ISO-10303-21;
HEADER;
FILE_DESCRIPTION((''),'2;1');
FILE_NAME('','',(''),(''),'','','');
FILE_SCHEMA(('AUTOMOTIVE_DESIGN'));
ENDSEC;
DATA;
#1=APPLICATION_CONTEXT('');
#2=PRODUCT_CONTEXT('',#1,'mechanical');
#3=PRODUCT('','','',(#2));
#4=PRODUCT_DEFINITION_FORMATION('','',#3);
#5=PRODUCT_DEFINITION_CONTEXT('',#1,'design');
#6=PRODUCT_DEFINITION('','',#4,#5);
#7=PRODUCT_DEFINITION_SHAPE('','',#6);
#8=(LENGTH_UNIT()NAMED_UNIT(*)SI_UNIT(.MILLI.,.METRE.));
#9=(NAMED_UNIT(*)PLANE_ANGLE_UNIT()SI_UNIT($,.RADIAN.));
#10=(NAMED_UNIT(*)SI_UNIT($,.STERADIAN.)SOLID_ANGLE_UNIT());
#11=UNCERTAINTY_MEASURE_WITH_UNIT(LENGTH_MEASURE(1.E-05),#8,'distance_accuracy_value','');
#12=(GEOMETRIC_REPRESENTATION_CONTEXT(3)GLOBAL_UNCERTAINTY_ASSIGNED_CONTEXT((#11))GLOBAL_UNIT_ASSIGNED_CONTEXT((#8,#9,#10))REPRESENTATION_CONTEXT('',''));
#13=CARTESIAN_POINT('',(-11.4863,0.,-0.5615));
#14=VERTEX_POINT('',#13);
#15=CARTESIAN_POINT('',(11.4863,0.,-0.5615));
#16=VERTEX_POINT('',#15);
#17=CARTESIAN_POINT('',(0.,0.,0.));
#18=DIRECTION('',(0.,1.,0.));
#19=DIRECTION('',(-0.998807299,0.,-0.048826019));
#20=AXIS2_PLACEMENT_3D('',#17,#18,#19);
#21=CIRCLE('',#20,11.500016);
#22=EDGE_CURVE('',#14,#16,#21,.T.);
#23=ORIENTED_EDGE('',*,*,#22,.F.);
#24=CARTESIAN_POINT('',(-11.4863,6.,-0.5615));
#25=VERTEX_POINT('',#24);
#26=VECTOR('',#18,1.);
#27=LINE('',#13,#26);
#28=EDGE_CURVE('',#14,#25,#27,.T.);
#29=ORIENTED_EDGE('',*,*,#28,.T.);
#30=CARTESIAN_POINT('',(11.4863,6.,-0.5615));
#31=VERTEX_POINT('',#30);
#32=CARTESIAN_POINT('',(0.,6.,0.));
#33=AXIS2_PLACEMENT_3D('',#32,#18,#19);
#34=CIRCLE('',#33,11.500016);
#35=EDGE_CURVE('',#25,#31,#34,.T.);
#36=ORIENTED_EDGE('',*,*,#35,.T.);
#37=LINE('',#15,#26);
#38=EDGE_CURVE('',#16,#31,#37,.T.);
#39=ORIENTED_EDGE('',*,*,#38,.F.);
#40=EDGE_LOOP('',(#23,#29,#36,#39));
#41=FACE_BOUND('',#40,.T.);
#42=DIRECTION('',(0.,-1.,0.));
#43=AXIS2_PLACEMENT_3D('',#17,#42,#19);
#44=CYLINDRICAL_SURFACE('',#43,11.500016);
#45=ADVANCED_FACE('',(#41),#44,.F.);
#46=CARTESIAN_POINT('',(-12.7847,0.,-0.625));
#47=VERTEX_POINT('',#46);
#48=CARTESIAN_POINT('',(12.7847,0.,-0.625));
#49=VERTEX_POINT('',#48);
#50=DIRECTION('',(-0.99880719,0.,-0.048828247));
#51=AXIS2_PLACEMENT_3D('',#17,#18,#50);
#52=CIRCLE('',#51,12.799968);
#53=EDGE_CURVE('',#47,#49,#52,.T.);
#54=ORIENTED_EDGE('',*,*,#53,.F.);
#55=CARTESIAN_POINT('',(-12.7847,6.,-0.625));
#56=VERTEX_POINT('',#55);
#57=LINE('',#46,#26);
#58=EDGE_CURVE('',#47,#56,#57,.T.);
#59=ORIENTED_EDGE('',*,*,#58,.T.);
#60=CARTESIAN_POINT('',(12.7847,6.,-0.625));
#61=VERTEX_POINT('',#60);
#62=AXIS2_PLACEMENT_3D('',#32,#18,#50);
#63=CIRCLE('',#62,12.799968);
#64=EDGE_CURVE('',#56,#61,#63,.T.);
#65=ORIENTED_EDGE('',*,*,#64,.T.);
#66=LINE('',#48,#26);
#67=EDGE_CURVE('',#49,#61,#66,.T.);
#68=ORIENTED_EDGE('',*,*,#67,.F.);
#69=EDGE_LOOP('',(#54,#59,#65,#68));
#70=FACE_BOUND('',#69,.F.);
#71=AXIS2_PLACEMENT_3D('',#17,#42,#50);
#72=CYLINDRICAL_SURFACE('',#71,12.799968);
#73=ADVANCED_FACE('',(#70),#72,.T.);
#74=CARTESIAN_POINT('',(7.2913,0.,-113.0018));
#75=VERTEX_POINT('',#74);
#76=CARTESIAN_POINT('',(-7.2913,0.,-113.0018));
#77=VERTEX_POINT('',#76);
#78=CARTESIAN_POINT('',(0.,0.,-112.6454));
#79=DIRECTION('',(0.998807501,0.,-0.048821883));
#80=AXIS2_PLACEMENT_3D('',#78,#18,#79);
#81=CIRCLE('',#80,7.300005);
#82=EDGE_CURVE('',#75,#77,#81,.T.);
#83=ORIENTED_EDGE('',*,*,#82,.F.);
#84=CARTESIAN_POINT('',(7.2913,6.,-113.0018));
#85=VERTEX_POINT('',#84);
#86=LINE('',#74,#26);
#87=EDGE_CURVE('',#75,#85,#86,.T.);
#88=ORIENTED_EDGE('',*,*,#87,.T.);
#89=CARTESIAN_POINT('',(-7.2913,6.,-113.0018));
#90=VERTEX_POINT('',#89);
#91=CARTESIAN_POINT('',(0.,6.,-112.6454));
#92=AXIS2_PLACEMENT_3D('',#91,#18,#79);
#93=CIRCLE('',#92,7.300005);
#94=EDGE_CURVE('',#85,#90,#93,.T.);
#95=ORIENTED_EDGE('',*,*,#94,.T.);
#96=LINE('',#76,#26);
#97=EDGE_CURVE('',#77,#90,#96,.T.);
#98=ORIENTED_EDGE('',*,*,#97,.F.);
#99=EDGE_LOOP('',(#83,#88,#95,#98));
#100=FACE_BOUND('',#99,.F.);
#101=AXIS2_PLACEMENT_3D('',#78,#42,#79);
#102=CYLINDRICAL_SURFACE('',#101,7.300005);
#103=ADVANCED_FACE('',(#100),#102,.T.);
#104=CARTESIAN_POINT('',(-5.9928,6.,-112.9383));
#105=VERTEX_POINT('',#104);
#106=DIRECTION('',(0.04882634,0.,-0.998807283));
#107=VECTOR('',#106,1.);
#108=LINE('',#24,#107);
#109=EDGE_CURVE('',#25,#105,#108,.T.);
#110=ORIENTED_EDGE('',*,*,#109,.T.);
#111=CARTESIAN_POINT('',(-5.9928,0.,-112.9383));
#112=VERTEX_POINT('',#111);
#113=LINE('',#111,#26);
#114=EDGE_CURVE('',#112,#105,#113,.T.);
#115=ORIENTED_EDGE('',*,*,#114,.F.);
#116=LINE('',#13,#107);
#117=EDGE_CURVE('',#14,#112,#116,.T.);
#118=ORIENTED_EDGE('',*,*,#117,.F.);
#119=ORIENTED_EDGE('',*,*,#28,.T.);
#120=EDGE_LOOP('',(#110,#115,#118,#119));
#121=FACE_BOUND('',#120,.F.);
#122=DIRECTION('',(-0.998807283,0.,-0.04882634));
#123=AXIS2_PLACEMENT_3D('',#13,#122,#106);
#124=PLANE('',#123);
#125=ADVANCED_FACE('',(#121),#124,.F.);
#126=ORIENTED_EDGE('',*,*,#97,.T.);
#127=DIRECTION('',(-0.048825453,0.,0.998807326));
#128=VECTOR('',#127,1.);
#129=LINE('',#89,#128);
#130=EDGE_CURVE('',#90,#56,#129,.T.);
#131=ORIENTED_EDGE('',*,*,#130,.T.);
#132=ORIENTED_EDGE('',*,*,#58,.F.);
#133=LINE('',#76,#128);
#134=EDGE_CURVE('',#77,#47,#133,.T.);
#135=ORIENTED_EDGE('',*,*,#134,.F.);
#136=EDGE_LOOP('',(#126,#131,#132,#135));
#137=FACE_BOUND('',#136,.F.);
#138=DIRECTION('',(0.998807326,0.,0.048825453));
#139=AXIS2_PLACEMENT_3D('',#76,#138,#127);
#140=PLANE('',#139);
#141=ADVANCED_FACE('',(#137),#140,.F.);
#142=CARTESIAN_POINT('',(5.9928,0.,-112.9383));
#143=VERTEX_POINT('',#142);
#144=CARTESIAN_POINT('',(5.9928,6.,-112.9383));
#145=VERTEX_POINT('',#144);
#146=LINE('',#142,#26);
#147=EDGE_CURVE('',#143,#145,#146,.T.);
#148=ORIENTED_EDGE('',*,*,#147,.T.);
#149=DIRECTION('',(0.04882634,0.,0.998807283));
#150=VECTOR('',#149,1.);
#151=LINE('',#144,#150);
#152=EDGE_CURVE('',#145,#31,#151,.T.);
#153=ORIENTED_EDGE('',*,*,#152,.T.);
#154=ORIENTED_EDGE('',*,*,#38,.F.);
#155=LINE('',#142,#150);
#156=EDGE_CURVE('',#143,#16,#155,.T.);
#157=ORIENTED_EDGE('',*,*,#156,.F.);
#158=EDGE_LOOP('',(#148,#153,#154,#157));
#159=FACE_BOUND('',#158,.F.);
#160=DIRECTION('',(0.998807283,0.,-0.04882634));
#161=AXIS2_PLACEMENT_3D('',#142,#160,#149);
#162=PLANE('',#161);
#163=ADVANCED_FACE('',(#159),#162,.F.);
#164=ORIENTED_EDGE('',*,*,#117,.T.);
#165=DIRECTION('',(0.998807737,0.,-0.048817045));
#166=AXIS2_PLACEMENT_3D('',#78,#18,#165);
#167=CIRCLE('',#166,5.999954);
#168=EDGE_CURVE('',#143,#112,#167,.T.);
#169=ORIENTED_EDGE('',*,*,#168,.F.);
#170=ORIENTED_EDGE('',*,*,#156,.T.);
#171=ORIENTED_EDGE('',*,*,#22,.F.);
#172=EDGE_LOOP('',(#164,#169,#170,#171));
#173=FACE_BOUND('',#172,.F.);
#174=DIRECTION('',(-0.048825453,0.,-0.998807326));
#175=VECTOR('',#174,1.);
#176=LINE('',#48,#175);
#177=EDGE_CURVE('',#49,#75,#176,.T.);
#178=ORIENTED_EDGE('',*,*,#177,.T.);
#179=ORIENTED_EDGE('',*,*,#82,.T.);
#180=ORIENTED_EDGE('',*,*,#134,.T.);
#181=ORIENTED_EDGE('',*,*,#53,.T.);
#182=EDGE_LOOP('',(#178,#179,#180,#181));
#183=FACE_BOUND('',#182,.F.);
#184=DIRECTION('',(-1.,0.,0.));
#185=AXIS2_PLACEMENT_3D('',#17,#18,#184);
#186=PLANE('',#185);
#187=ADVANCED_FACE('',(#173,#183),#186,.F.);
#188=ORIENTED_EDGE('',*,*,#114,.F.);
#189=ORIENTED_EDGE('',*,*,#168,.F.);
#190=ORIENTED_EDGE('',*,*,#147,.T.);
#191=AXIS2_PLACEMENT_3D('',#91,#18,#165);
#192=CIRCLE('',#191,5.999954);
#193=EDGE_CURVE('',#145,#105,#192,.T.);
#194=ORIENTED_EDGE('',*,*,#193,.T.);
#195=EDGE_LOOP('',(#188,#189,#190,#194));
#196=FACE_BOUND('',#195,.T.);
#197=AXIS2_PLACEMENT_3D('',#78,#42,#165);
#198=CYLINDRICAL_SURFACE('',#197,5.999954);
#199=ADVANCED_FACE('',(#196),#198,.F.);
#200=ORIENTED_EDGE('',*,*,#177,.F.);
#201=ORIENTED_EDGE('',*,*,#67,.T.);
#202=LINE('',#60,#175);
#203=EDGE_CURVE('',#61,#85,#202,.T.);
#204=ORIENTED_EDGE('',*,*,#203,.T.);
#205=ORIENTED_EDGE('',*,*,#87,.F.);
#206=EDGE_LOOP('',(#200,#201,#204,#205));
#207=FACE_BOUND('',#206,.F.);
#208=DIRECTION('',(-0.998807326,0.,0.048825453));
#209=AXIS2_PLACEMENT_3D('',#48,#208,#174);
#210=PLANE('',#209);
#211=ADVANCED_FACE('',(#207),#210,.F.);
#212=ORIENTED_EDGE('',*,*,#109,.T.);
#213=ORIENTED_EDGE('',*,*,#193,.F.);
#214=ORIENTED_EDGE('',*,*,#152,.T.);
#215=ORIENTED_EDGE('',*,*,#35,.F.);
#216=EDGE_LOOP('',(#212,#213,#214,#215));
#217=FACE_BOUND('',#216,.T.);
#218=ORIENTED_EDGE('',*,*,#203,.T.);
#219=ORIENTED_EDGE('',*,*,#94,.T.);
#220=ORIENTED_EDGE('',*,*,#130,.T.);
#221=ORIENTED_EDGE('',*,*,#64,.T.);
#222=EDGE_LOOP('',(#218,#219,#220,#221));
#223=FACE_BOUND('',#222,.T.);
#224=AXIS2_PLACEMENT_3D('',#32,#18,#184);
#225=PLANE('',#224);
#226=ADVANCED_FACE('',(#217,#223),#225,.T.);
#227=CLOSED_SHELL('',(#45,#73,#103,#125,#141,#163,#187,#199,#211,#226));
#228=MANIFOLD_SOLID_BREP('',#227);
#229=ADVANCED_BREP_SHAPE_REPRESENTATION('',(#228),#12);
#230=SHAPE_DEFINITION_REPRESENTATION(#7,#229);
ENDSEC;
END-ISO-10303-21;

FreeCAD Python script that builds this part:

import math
import FreeCAD as App
import Part
import Sketcher
from FreeCAD import Vector
Q = App.Units.Quantity

doc = App.newDocument("Part")
body = doc.addObject("PartDesign::Body", "Body")

sketch1 = body.newObject("Sketcher::SketchObject", "Sketch")
sketch1.AttachmentSupport = (doc.getObject("XZ_Plane"), [""])
sketch1.MapMode = "FlatFace"
sketch1.addGeometry([
    Part.ArcOfCircle(Part.Circle(Vector(0, -113, 0), Vector(0, 0, 1), 7), math.radians(-177), math.radians(-3)),
    Part.LineSegment(Vector(-7, -113, 0), Vector(-13, -1, 0)),
    Part.ArcOfCircle(Part.Circle(Vector(0, 0, 0), Vector(0, 0, 1), 13), math.radians(-3), math.radians(183)),
    Part.LineSegment(Vector(13, -1, 0), Vector(7, -113, 0)),
    Part.ArcOfCircle(Part.Circle(Vector(0, 0, 0), Vector(0, 0, 1), 12), math.radians(-3), math.radians(183)),
    Part.LineSegment(Vector(-11, -1, 0), Vector(-6, -113, 0)),
    Part.ArcOfCircle(Part.Circle(Vector(0, -113, 0), Vector(0, 0, 1), 6), math.radians(-177), math.radians(-3)),
    Part.LineSegment(Vector(6, -113, 0), Vector(11, -1, 0)),
], False)
sketch1.addConstraint([
    Sketcher.Constraint("Tangent", 0, 1, 1, 1),
    Sketcher.Constraint("Tangent", 1, 2, 2, 2),
    Sketcher.Constraint("Tangent", 2, 1, 3, 1),
    Sketcher.Constraint("Tangent", 3, 2, 0, 2),
    Sketcher.Constraint("Tangent", 4, 2, 5, 1),
    Sketcher.Constraint("Tangent", 5, 2, 6, 1),
    Sketcher.Constraint("Tangent", 6, 2, 7, 1),
    Sketcher.Constraint("Tangent", 7, 2, 4, 1),
    Sketcher.Constraint("Coincident", 2, 3, -1, 1),
    Sketcher.Constraint("Coincident", 4, 3, -1, 1),
    Sketcher.Constraint("Coincident", 6, 3, 0, 3),
    Sketcher.Constraint("PointOnObject", 0, 3, -2),
    Sketcher.Constraint("Parallel", 1, 5),
    Sketcher.Constraint("Radius", 6, Q("6 mm")),
    Sketcher.Constraint("Radius", 4, Q("11.5 mm")),
    Sketcher.Constraint("Radius", 0, Q("7.3 mm")),
    Sketcher.Constraint("Distance", 1, Q("112.511 mm")),
])
pad1 = body.newObject("PartDesign::Pad", "Pad")
pad1.Profile = sketch1
pad1.Length = 6
pad1.Reversed = True

doc.recompute()
